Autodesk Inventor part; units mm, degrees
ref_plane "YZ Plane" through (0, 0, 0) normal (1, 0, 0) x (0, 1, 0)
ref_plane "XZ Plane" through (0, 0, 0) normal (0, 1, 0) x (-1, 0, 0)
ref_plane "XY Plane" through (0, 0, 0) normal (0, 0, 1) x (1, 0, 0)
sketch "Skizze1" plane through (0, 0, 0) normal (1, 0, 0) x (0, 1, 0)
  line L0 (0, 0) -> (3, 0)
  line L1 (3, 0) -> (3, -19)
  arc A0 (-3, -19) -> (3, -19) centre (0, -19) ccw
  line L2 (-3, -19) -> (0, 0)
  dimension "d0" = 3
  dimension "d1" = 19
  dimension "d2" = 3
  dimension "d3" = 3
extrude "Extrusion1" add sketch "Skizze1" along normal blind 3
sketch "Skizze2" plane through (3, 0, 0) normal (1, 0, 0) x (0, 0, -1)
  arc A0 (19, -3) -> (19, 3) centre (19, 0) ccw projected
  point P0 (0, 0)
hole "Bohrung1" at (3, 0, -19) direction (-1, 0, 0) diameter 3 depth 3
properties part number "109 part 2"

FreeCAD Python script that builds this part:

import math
import FreeCAD as App
import Part
import Sketcher

doc = App.newDocument("Part")
body = doc.addObject("PartDesign::Body", "Body")

# Sketch on YZ plane
sketch1 = body.newObject("Sketcher::SketchObject", "Sketch")
sketch1.AttachmentSupport = (doc.getObject("YZ_Plane"), [""])
sketch1.MapMode = "FlatFace"
sketch1.addGeometry(Part.LineSegment(App.Vector(3, 0, 0), App.Vector(0, 0, 0)), False)
sketch1.addGeometry(Part.LineSegment(App.Vector(0, 0, 0), App.Vector(-3, -19, 0)), False)
sketch1.addGeometry(Part.ArcOfCircle(Part.Circle(App.Vector(0, -19, 0), App.Vector(0, 0, 1), 3), math.radians(180), math.radians(360)), False)
sketch1.addGeometry(Part.LineSegment(App.Vector(3, -19, 0), App.Vector(3, 0, 0)), False)
sketch1.addConstraint(Sketcher.Constraint("Coincident", 0, 2, 1, 1))
sketch1.addConstraint(Sketcher.Constraint("Coincident", 1, 2, 2, 1))
sketch1.addConstraint(Sketcher.Constraint("Tangent", 2, 2, 3, 1))
sketch1.addConstraint(Sketcher.Constraint("Coincident", 3, 2, 0, 1))
sketch1.addConstraint(Sketcher.Constraint("Horizontal", 0))
sketch1.addConstraint(Sketcher.Constraint("Vertical", 3))
sketch1.addConstraint(Sketcher.Constraint("Coincident", 0, 2, -1, 1))
sketch1.addConstraint(Sketcher.Constraint("Symmetric", 1, 2, 2, 2, -2))
sketch1.addConstraint(Sketcher.Constraint("Radius", 2, 3.0))
sketch1.addConstraint(Sketcher.Constraint("DistanceY", 3, 1, 3, 2, 19.0))
pad1 = body.newObject("PartDesign::Pad", "Pad")
pad1.Profile = sketch1
pad1.Length = 3

# Sketch on YZ plane
sketch2 = body.newObject("Sketcher::SketchObject", "Sketch001")
sketch2.AttachmentSupport = (doc.getObject("YZ_Plane"), [""])
sketch2.MapMode = "FlatFace"
sketch2.AttachmentOffset = App.Placement(App.Vector(0, 0, 3), App.Rotation())
sketch2.addGeometry(Part.Circle(App.Vector(0, -19, 0), App.Vector(0, 0, 1), 1.5), False)
sketch2.addConstraint(Sketcher.Constraint("PointOnObject", 0, 3, -2))
sketch2.addConstraint(Sketcher.Constraint("Diameter", 0, 3.0))
sketch2.addConstraint(Sketcher.Constraint("DistanceY", 0, 3, -1, 1, 19.0))
doc.recompute()
hole = body.newObject("PartDesign::Hole", "Hole")
hole.Profile = sketch2
hole.ThreadType = "None"
hole.Diameter = 3
hole.DepthType = "Dimension"
hole.Depth = 3
hole.DrillPoint = "Flat"

doc.recompute()
